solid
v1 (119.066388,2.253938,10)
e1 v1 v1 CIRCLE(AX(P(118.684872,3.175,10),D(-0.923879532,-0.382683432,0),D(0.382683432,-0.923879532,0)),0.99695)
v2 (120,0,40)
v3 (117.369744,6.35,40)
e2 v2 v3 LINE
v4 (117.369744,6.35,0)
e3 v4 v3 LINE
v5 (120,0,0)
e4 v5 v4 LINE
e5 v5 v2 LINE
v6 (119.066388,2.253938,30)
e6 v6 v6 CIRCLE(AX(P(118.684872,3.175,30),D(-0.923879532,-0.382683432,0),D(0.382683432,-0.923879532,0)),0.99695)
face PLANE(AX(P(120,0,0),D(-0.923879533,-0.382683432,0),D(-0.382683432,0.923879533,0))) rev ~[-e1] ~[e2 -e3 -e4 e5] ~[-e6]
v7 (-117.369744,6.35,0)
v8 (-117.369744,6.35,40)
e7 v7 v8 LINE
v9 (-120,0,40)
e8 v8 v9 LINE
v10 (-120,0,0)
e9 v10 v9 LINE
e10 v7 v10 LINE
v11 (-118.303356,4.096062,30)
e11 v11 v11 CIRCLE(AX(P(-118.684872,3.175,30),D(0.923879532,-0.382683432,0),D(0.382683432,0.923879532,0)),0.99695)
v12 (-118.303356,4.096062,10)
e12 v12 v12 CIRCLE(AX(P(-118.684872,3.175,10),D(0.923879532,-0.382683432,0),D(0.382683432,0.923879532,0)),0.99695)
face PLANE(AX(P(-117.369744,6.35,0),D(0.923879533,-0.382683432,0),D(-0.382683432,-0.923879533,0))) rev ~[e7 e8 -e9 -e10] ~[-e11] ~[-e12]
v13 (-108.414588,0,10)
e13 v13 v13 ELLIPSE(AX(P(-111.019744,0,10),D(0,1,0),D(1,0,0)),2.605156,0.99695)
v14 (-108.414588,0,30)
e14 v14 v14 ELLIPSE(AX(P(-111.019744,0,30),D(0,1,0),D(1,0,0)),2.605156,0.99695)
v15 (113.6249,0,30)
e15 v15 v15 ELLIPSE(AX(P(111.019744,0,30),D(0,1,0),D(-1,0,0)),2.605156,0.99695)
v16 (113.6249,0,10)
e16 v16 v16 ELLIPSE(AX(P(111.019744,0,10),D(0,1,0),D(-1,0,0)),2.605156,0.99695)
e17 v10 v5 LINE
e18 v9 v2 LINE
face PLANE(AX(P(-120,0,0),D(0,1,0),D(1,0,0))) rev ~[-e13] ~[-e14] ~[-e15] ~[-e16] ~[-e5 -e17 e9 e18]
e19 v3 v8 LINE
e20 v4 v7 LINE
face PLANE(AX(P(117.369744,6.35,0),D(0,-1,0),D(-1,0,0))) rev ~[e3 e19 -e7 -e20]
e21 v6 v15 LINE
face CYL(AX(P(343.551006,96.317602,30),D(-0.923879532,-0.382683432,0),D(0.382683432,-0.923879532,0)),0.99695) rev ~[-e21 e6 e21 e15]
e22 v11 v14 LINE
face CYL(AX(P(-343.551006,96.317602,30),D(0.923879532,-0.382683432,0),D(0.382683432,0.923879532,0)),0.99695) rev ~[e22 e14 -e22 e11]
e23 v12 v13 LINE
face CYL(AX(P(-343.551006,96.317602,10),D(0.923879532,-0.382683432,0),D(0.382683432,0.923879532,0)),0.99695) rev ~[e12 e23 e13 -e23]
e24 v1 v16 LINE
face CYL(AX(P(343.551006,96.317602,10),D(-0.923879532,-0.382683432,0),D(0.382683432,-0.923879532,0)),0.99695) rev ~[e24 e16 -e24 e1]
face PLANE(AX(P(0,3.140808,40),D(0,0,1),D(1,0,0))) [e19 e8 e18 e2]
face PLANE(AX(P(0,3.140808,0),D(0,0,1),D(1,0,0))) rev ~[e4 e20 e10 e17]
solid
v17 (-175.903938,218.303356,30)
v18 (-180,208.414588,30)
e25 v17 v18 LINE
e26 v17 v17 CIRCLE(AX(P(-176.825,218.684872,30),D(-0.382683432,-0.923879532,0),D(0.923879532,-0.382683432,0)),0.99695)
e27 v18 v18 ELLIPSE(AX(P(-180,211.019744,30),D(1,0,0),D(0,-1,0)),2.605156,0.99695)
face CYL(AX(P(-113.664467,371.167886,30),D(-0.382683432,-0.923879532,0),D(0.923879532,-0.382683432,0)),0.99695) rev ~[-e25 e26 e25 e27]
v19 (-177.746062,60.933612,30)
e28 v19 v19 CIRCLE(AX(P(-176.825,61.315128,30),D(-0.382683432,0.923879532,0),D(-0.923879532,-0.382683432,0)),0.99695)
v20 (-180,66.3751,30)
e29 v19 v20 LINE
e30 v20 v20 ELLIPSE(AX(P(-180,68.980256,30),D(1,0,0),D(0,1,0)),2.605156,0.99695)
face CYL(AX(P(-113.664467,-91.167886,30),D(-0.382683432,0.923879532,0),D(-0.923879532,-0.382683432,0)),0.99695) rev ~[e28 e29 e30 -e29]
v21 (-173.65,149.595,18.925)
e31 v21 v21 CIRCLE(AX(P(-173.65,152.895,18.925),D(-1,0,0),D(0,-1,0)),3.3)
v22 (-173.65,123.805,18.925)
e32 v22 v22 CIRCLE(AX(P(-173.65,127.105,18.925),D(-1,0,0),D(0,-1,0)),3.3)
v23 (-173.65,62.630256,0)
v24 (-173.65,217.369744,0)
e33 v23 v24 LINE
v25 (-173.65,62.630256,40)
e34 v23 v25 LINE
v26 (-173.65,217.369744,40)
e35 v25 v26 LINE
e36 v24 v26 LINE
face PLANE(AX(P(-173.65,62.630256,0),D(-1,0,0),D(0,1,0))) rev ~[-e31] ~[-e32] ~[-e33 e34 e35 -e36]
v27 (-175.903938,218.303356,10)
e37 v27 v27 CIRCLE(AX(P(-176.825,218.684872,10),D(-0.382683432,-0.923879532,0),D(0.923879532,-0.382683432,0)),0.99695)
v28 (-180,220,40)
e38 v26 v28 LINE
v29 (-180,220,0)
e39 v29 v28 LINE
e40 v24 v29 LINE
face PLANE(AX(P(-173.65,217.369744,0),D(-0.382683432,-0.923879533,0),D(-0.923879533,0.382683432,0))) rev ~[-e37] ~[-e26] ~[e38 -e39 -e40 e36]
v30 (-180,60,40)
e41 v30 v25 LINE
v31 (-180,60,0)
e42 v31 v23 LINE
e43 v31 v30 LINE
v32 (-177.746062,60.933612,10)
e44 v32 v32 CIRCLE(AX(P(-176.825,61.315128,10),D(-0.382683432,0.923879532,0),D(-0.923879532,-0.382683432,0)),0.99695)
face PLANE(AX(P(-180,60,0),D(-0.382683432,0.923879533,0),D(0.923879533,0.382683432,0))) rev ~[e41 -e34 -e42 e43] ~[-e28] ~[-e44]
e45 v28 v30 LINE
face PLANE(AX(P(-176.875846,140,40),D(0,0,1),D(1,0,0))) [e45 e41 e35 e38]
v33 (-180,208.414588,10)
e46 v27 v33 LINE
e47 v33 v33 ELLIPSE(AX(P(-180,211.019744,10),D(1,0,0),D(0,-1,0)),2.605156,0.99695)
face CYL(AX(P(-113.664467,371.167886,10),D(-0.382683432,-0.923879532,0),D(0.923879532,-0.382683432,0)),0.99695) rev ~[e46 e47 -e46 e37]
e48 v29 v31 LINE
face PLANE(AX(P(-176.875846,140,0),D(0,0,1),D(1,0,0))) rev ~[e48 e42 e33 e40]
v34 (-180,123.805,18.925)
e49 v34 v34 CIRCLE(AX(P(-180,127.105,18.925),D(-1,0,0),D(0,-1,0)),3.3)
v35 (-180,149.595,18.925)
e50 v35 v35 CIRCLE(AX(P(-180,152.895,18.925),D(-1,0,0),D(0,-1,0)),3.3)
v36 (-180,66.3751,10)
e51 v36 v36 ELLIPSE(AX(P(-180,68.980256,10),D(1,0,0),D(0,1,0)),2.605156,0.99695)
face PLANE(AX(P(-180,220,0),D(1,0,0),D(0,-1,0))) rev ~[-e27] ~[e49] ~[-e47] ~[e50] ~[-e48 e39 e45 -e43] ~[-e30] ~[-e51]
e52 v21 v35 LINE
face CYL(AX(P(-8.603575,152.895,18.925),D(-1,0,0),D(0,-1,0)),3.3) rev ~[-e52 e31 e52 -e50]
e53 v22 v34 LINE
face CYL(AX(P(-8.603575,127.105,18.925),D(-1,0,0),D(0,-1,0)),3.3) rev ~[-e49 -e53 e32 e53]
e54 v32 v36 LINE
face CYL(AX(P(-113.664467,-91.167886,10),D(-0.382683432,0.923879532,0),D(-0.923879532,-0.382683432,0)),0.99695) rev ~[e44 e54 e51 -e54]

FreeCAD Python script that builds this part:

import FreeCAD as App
import Part
import Sketcher
from FreeCAD import Vector
Q = App.Units.Quantity

doc = App.newDocument("Part")
params = doc.addObject("Spreadsheet::Sheet", "Params")
for row, (alias, value) in enumerate([
    ("sketch1_width", "240 mm"),
    ("pad1_length", "40 mm"),
    ("sketch2_height", "160 mm"),
    ("pad2_length", "40 mm"),
    ("sketch3_diameter", "6.6 mm"),
    ("hole_diameter", "6.6 mm"),
    ("hole2_diameter", "1.9939 mm"),
    ("hole3_diameter", "1.9939 mm"),
    ("sketch6_height", "160 mm"),
    ("pad3_length", "40 mm"),
    ("sketch7_diameter", "6.6 mm"),
    ("hole4_diameter", "6.6 mm"),
    ("sketch8_width", "240 mm"),
    ("pad4_length", "40 mm"),
    ("hole5_diameter", "1.9939 mm"),
    ("hole6_diameter", "1.9939 mm"),
], start=1):
    params.set(f"A{row}", alias)
    params.set(f"B{row}", "=" + value)
    params.setAlias(f"B{row}", alias)

body = doc.addObject("PartDesign::Body", "Body")

# Sketch on XY plane
sketch1 = doc.addObject("Sketcher::SketchObject", "Sketch")
body.addObject(sketch1)
sketch1.AttachmentSupport = (doc.XY_Plane, [""])
sketch1.MapMode = "FlatFace"
sketch1.addGeometry(Part.LineSegment(Vector(120, 280, 0), Vector(-120, 280, 0)), False)
sketch1.addGeometry(Part.LineSegment(Vector(-120, 280, 0), Vector(-117.369744, 273.65, 0)), False)
sketch1.addGeometry(Part.LineSegment(Vector(-117.369744, 273.65, 0), Vector(117.369744, 273.65, 0)), False)
sketch1.addGeometry(Part.LineSegment(Vector(117.369744, 273.65, 0), Vector(120, 280, 0)), False)
sketch1.addConstraint(Sketcher.Constraint("Coincident", 0, 2, 1, 1))
sketch1.addConstraint(Sketcher.Constraint("Coincident", 1, 2, 2, 1))
sketch1.addConstraint(Sketcher.Constraint("Coincident", 2, 2, 3, 1))
sketch1.addConstraint(Sketcher.Constraint("Coincident", 3, 2, 0, 1))
sketch1.addConstraint(Sketcher.Constraint("Horizontal", 0))
sketch1.addConstraint(Sketcher.Constraint("Horizontal", 2))
sketch1.addConstraint(Sketcher.Constraint("Equal", 1, 3))
sketch1.addConstraint(Sketcher.Constraint("DistanceX", 0, 2, 0, 1, 240.0))
sketch1.addConstraint(Sketcher.Constraint("DistanceX", 0, 2, -1, 1, 120.0))
sketch1.addConstraint(Sketcher.Constraint("DistanceY", -1, 1, 0, 2, 280.0))
sketch1.addConstraint(Sketcher.Constraint("Angle", 1, Q("-67.5 deg")))
sketch1.addConstraint(Sketcher.Constraint("DistanceY", -1, 1, 1, 2, 273.65))
sketch1.setExpression("Constraints[7]", "Params.sketch1_width")
pad1 = doc.addObject("PartDesign::Pad", "Pad")
body.addObject(pad1)
pad1.Profile = sketch1
pad1.setExpression("Length", "Params.pad1_length")
body2 = doc.addObject("PartDesign::Body", "Body001")

# Sketch on XY plane
sketch2 = doc.addObject("Sketcher::SketchObject", "Sketch001")
body2.addObject(sketch2)
sketch2.AttachmentSupport = (doc.getObject("XY_Plane001"), [""])
sketch2.MapMode = "FlatFace"
sketch2.addGeometry(Part.LineSegment(Vector(-180, 220, 0), Vector(-180, 60, 0)), False)
sketch2.addGeometry(Part.LineSegment(Vector(-180, 60, 0), Vector(-173.65, 62.630256, 0)), False)
sketch2.addGeometry(Part.LineSegment(Vector(-173.65, 62.630256, 0), Vector(-173.65, 217.369744, 0)), False)
sketch2.addGeometry(Part.LineSegment(Vector(-173.65, 217.369744, 0), Vector(-180, 220, 0)), False)
sketch2.addConstraint(Sketcher.Constraint("Coincident", 0, 2, 1, 1))
sketch2.addConstraint(Sketcher.Constraint("Coincident", 1, 2, 2, 1))
sketch2.addConstraint(Sketcher.Constraint("Coincident", 2, 2, 3, 1))
sketch2.addConstraint(Sketcher.Constraint("Coincident", 3, 2, 0, 1))
sketch2.addConstraint(Sketcher.Constraint("Vertical", 0))
sketch2.addConstraint(Sketcher.Constraint("Vertical", 2))
sketch2.addConstraint(Sketcher.Constraint("Equal", 1, 3))
sketch2.addConstraint(Sketcher.Constraint("DistanceY", 0, 2, 0, 1, 160.0))
sketch2.addConstraint(Sketcher.Constraint("DistanceX", 0, 2, -1, 1, 180.0))
sketch2.addConstraint(Sketcher.Constraint("DistanceY", -1, 1, 0, 2, 60.0))
sketch2.addConstraint(Sketcher.Constraint("Angle", 1, Q("22.5 deg")))
sketch2.addConstraint(Sketcher.Constraint("DistanceX", 1, 2, -1, 1, 173.65))
sketch2.setExpression("Constraints[7]", "Params.sketch2_height")
pad2 = doc.addObject("PartDesign::Pad", "Pad001")
body2.addObject(pad2)
pad2.Profile = sketch2
pad2.setExpression("Length", "Params.pad2_length")

# Sketch on YZ plane
sketch3 = doc.addObject("Sketcher::SketchObject", "Sketch002")
body2.addObject(sketch3)
sketch3.AttachmentSupport = (doc.getObject("YZ_Plane001"), [""])
sketch3.MapMode = "FlatFace"
sketch3.AttachmentOffset = App.Placement(Vector(0, 0, -173.65), App.Rotation())
sketch3.addGeometry(Part.Circle(Vector(127.105, 18.925, 0), Vector(0, 0, 1), 3.3), False)
sketch3.addGeometry(Part.Circle(Vector(152.895, 18.925, 0), Vector(0, 0, 1), 3.3), False)
sketch3.addConstraint(Sketcher.Constraint("Equal", 0, 1))
sketch3.addConstraint(Sketcher.Constraint("Horizontal", 0, 3, 1, 3))
sketch3.addConstraint(Sketcher.Constraint("Diameter", 0, 6.6))
sketch3.addConstraint(Sketcher.Constraint("DistanceX", 0, 3, 1, 3, 25.79))
sketch3.addConstraint(Sketcher.Constraint("DistanceX", -1, 1, 0, 3, 127.105))
sketch3.addConstraint(Sketcher.Constraint("DistanceY", -1, 1, 0, 3, 18.925))
sketch3.setExpression("Constraints[2]", "Params.sketch3_diameter")
doc.recompute()
hole = doc.addObject("PartDesign::Hole", "Hole")
body2.addObject(hole)
hole.Profile = sketch3
hole.ThreadType = "None"
hole.setExpression("Diameter", "Params.hole_diameter")
hole.DepthType = "ThroughAll"

# Sketch on an angled plane
sketch4 = doc.addObject("Sketcher::SketchObject", "Sketch003")
body2.addObject(sketch4)
sketch4.Placement = App.Placement(Vector(-47.573593, 114.852814, 0), App.Rotation(Vector(0.923879532, 0.382683432, 0), Vector(0, 0, 0.999999999), Vector(0.382683432, -0.923879532, 0), "ZXY"))
sketch4.addGeometry(Part.Circle(Vector(-139.900714, 30, 0), Vector(0, 0, 1), 0.99695), False)
sketch4.addGeometry(Part.Circle(Vector(-139.900714, 10, 0), Vector(0, 0, 1), 0.99695), False)
sketch4.addConstraint(Sketcher.Constraint("Equal", 0, 1))
sketch4.addConstraint(Sketcher.Constraint("Vertical", 0, 3, 1, 3))
sketch4.addConstraint(Sketcher.Constraint("DistanceY", -1, 1, 0, 3, 30.0))
sketch4.addConstraint(Sketcher.Constraint("DistanceY", -1, 1, 1, 3, 10.0))
sketch4.addConstraint(Sketcher.Constraint("Diameter", 0, 1.9939))
sketch4.addConstraint(Sketcher.Constraint("DistanceX", 0, 3, -1, 1, 139.900714))
doc.recompute()
hole2 = doc.addObject("PartDesign::Hole", "Hole001")
body2.addObject(hole2)
hole2.Profile = sketch4
hole2.ThreadType = "None"
hole2.setExpression("Diameter", "Params.hole2_diameter")
hole2.DepthType = "ThroughAll"

# Sketch on an angled plane
sketch5 = doc.addObject("Sketcher::SketchObject", "Sketch004")
body2.addObject(sketch5)
sketch5.Placement = App.Placement(Vector(51.421356, 124.142136, 0), App.Rotation(Vector(-0.923879532, 0.382683432, 0), Vector(0, 0, 0.999999999), Vector(0.382683432, 0.923879532, 0), "ZXY"))
sketch5.addGeometry(Part.Circle(Vector(247.052075, 30, 0), Vector(0, 0, 1), 0.99695), False)
sketch5.addGeometry(Part.Circle(Vector(247.052075, 10, 0), Vector(0, 0, 1), 0.99695), False)
sketch5.addConstraint(Sketcher.Constraint("Equal", 0, 1))
sketch5.addConstraint(Sketcher.Constraint("Vertical", 0, 3, 1, 3))
sketch5.addConstraint(Sketcher.Constraint("DistanceY", -1, 1, 0, 3, 30.0))
sketch5.addConstraint(Sketcher.Constraint("DistanceY", -1, 1, 1, 3, 10.0))
sketch5.addConstraint(Sketcher.Constraint("Diameter", 0, 1.9939))
sketch5.addConstraint(Sketcher.Constraint("DistanceX", -1, 1, 0, 3, 247.052075))
doc.recompute()
hole3 = doc.addObject("PartDesign::Hole", "Hole002")
body2.addObject(hole3)
hole3.Profile = sketch5
hole3.ThreadType = "None"
hole3.setExpression("Diameter", "Params.hole3_diameter")
hole3.DepthType = "ThroughAll"
body3 = doc.addObject("PartDesign::Body", "Body002")

# Sketch on XY plane
sketch6 = doc.addObject("Sketcher::SketchObject", "Sketch005")
body3.addObject(sketch6)
sketch6.AttachmentSupport = (doc.getObject("XY_Plane002"), [""])
sketch6.MapMode = "FlatFace"
sketch6.addGeometry(Part.LineSegment(Vector(173.65, 62.630256, 0), Vector(180, 60, 0)), False)
sketch6.addGeometry(Part.LineSegment(Vector(180, 60, 0), Vector(180, 220, 0)), False)
sketch6.addGeometry(Part.LineSegment(Vector(180, 220, 0), Vector(173.65, 217.369744, 0)), False)
sketch6.addGeometry(Part.LineSegment(Vector(173.65, 217.369744, 0), Vector(173.65, 62.630256, 0)), False)
sketch6.addConstraint(Sketcher.Constraint("Coincident", 0, 2, 1, 1))
sketch6.addConstraint(Sketcher.Constraint("Coincident", 1, 2, 2, 1))
sketch6.addConstraint(Sketcher.Constraint("Coincident", 2, 2, 3, 1))
sketch6.addConstraint(Sketcher.Constraint("Coincident", 3, 2, 0, 1))
sketch6.addConstraint(Sketcher.Constraint("Vertical", 1))
sketch6.addConstraint(Sketcher.Constraint("Vertical", 3))
sketch6.addConstraint(Sketcher.Constraint("Equal", 0, 2))
sketch6.addConstraint(Sketcher.Constraint("DistanceY", 1, 1, 1, 2, 160.0))
sketch6.addConstraint(Sketcher.Constraint("DistanceX", -1, 1, 0, 2, 180.0))
sketch6.addConstraint(Sketcher.Constraint("DistanceY", -1, 1, 0, 2, 60.0))
sketch6.addConstraint(Sketcher.Constraint("Angle", 0, Q("-22.5 deg")))
sketch6.addConstraint(Sketcher.Constraint("DistanceX", -1, 1, 2, 2, 173.65))
sketch6.setExpression("Constraints[7]", "Params.sketch6_height")
pad3 = doc.addObject("PartDesign::Pad", "Pad002")
body3.addObject(pad3)
pad3.Profile = sketch6
pad3.setExpression("Length", "Params.pad3_length")

# Sketch on YZ plane
sketch7 = doc.addObject("Sketcher::SketchObject", "Sketch006")
body3.addObject(sketch7)
sketch7.AttachmentSupport = (doc.getObject("YZ_Plane002"), [""])
sketch7.MapMode = "FlatFace"
sketch7.AttachmentOffset = App.Placement(Vector(0, 0, 173.65), App.Rotation())
sketch7.addGeometry(Part.Circle(Vector(127.105, 20, 0), Vector(0, 0, 1), 3.3), False)
sketch7.addGeometry(Part.Circle(Vector(152.895, 20, 0), Vector(0, 0, 1), 3.3), False)
sketch7.addConstraint(Sketcher.Constraint("Equal", 0, 1))
sketch7.addConstraint(Sketcher.Constraint("Horizontal", 0, 3, 1, 3))
sketch7.addConstraint(Sketcher.Constraint("Diameter", 0, 6.6))
sketch7.addConstraint(Sketcher.Constraint("DistanceY", -1, 1, 0, 3, 20.0))
sketch7.addConstraint(Sketcher.Constraint("DistanceX", 0, 3, 1, 3, 25.79))
sketch7.addConstraint(Sketcher.Constraint("DistanceX", -1, 1, 0, 3, 127.105))
sketch7.setExpression("Constraints[2]", "Params.sketch7_diameter")
doc.recompute()
hole4 = doc.addObject("PartDesign::Hole", "Hole003")
body3.addObject(hole4)
hole4.Profile = sketch7
hole4.ThreadType = "None"
hole4.setExpression("Diameter", "Params.hole4_diameter")
hole4.DepthType = "ThroughAll"
hole4.Reversed = True
body4 = doc.addObject("PartDesign::Body", "Body003")

# Sketch on XY plane
sketch8 = doc.addObject("Sketcher::SketchObject", "Sketch007")
body4.addObject(sketch8)
sketch8.AttachmentSupport = (doc.getObject("XY_Plane003"), [""])
sketch8.MapMode = "FlatFace"
sketch8.addGeometry(Part.LineSegment(Vector(-117.369744, 6.35, 0), Vector(-120, 0, 0)), False)
sketch8.addGeometry(Part.LineSegment(Vector(-120, 0, 0), Vector(120, 0, 0)), False)
sketch8.addGeometry(Part.LineSegment(Vector(120, 0, 0), Vector(117.369744, 6.35, 0)), False)
sketch8.addGeometry(Part.LineSegment(Vector(117.369744, 6.35, 0), Vector(-117.369744, 6.35, 0)), False)
sketch8.addConstraint(Sketcher.Constraint("Coincident", 0, 2, 1, 1))
sketch8.addConstraint(Sketcher.Constraint("Coincident", 1, 2, 2, 1))
sketch8.addConstraint(Sketcher.Constraint("Coincident", 2, 2, 3, 1))
sketch8.addConstraint(Sketcher.Constraint("Coincident", 3, 2, 0, 1))
sketch8.addConstraint(Sketcher.Constraint("Horizontal", 1))
sketch8.addConstraint(Sketcher.Constraint("Horizontal", 3))
sketch8.addConstraint(Sketcher.Constraint("Symmetric", 0, 2, 1, 2, -1, 1))
sketch8.addConstraint(Sketcher.Constraint("Equal", 0, 2))
sketch8.addConstraint(Sketcher.Constraint("DistanceX", 1, 1, 1, 2, 240.0))
sketch8.addConstraint(Sketcher.Constraint("Angle", 0, Q("-112.5 deg")))
sketch8.addConstraint(Sketcher.Constraint("DistanceY", -1, 1, 2, 2, 6.35))
sketch8.setExpression("Constraints[8]", "Params.sketch8_width")
pad4 = doc.addObject("PartDesign::Pad", "Pad003")
body4.addObject(pad4)
pad4.Profile = sketch8
pad4.setExpression("Length", "Params.pad4_length")

# Sketch on an angled plane
sketch9 = doc.addObject("Sketcher::SketchObject", "Sketch008")
body4.addObject(sketch9)
sketch9.Placement = App.Placement(Vector(102.426407, 42.426407, 0), App.Rotation(Vector(-0.382683432, 0.923879532, 0), Vector(0, 0, 0.999999999), Vector(0.923879532, 0.382683432, 0), "ZXY"))
sketch9.addGeometry(Part.Circle(Vector(-42.485417, 30, 0), Vector(0, 0, 1), 0.99695), False)
sketch9.addGeometry(Part.Circle(Vector(-42.485417, 10, 0), Vector(0, 0, 1), 0.99695), False)
sketch9.addConstraint(Sketcher.Constraint("Equal", 0, 1))
sketch9.addConstraint(Sketcher.Constraint("Vertical", 0, 3, 1, 3))
sketch9.addConstraint(Sketcher.Constraint("DistanceY", -1, 1, 0, 3, 30.0))
sketch9.addConstraint(Sketcher.Constraint("DistanceY", -1, 1, 1, 3, 10.0))
sketch9.addConstraint(Sketcher.Constraint("Diameter", 0, 1.9939))
sketch9.addConstraint(Sketcher.Constraint("DistanceX", 0, 3, -1, 1, 42.485417))
doc.recompute()
hole5 = doc.addObject("PartDesign::Hole", "Hole004")
body4.addObject(hole5)
hole5.Profile = sketch9
hole5.ThreadType = "None"
hole5.setExpression("Diameter", "Params.hole5_diameter")
hole5.DepthType = "ThroughAll"

# Sketch on an angled plane
sketch10 = doc.addObject("Sketcher::SketchObject", "Sketch009")
body4.addObject(sketch10)
sketch10.Placement = App.Placement(Vector(-102.426407, 42.426407, 0), App.Rotation(Vector(-0.382683432, -0.923879532, 0), Vector(0, 0, 0.999999999), Vector(-0.923879532, 0.382683432, 0), "ZXY"))
sketch10.addGeometry(Part.Circle(Vector(42.485417, 30, 0), Vector(0, 0, 1), 0.99695), False)
sketch10.addGeometry(Part.Circle(Vector(42.485417, 10, 0), Vector(0, 0, 1), 0.99695), False)
sketch10.addConstraint(Sketcher.Constraint("Equal", 0, 1))
sketch10.addConstraint(Sketcher.Constraint("Vertical", 0, 3, 1, 3))
sketch10.addConstraint(Sketcher.Constraint("DistanceY", -1, 1, 0, 3, 30.0))
sketch10.addConstraint(Sketcher.Constraint("DistanceY", -1, 1, 1, 3, 10.0))
sketch10.addConstraint(Sketcher.Constraint("Diameter", 0, 1.9939))
sketch10.addConstraint(Sketcher.Constraint("DistanceX", -1, 1, 0, 3, 42.485417))
doc.recompute()
hole6 = doc.addObject("PartDesign::Hole", "Hole005")
body4.addObject(hole6)
hole6.Profile = sketch10
hole6.ThreadType = "None"
hole6.setExpression("Diameter", "Params.hole6_diameter")
hole6.DepthType = "ThroughAll"
body.Visibility = False
body3.Visibility = False

doc.recompute()
